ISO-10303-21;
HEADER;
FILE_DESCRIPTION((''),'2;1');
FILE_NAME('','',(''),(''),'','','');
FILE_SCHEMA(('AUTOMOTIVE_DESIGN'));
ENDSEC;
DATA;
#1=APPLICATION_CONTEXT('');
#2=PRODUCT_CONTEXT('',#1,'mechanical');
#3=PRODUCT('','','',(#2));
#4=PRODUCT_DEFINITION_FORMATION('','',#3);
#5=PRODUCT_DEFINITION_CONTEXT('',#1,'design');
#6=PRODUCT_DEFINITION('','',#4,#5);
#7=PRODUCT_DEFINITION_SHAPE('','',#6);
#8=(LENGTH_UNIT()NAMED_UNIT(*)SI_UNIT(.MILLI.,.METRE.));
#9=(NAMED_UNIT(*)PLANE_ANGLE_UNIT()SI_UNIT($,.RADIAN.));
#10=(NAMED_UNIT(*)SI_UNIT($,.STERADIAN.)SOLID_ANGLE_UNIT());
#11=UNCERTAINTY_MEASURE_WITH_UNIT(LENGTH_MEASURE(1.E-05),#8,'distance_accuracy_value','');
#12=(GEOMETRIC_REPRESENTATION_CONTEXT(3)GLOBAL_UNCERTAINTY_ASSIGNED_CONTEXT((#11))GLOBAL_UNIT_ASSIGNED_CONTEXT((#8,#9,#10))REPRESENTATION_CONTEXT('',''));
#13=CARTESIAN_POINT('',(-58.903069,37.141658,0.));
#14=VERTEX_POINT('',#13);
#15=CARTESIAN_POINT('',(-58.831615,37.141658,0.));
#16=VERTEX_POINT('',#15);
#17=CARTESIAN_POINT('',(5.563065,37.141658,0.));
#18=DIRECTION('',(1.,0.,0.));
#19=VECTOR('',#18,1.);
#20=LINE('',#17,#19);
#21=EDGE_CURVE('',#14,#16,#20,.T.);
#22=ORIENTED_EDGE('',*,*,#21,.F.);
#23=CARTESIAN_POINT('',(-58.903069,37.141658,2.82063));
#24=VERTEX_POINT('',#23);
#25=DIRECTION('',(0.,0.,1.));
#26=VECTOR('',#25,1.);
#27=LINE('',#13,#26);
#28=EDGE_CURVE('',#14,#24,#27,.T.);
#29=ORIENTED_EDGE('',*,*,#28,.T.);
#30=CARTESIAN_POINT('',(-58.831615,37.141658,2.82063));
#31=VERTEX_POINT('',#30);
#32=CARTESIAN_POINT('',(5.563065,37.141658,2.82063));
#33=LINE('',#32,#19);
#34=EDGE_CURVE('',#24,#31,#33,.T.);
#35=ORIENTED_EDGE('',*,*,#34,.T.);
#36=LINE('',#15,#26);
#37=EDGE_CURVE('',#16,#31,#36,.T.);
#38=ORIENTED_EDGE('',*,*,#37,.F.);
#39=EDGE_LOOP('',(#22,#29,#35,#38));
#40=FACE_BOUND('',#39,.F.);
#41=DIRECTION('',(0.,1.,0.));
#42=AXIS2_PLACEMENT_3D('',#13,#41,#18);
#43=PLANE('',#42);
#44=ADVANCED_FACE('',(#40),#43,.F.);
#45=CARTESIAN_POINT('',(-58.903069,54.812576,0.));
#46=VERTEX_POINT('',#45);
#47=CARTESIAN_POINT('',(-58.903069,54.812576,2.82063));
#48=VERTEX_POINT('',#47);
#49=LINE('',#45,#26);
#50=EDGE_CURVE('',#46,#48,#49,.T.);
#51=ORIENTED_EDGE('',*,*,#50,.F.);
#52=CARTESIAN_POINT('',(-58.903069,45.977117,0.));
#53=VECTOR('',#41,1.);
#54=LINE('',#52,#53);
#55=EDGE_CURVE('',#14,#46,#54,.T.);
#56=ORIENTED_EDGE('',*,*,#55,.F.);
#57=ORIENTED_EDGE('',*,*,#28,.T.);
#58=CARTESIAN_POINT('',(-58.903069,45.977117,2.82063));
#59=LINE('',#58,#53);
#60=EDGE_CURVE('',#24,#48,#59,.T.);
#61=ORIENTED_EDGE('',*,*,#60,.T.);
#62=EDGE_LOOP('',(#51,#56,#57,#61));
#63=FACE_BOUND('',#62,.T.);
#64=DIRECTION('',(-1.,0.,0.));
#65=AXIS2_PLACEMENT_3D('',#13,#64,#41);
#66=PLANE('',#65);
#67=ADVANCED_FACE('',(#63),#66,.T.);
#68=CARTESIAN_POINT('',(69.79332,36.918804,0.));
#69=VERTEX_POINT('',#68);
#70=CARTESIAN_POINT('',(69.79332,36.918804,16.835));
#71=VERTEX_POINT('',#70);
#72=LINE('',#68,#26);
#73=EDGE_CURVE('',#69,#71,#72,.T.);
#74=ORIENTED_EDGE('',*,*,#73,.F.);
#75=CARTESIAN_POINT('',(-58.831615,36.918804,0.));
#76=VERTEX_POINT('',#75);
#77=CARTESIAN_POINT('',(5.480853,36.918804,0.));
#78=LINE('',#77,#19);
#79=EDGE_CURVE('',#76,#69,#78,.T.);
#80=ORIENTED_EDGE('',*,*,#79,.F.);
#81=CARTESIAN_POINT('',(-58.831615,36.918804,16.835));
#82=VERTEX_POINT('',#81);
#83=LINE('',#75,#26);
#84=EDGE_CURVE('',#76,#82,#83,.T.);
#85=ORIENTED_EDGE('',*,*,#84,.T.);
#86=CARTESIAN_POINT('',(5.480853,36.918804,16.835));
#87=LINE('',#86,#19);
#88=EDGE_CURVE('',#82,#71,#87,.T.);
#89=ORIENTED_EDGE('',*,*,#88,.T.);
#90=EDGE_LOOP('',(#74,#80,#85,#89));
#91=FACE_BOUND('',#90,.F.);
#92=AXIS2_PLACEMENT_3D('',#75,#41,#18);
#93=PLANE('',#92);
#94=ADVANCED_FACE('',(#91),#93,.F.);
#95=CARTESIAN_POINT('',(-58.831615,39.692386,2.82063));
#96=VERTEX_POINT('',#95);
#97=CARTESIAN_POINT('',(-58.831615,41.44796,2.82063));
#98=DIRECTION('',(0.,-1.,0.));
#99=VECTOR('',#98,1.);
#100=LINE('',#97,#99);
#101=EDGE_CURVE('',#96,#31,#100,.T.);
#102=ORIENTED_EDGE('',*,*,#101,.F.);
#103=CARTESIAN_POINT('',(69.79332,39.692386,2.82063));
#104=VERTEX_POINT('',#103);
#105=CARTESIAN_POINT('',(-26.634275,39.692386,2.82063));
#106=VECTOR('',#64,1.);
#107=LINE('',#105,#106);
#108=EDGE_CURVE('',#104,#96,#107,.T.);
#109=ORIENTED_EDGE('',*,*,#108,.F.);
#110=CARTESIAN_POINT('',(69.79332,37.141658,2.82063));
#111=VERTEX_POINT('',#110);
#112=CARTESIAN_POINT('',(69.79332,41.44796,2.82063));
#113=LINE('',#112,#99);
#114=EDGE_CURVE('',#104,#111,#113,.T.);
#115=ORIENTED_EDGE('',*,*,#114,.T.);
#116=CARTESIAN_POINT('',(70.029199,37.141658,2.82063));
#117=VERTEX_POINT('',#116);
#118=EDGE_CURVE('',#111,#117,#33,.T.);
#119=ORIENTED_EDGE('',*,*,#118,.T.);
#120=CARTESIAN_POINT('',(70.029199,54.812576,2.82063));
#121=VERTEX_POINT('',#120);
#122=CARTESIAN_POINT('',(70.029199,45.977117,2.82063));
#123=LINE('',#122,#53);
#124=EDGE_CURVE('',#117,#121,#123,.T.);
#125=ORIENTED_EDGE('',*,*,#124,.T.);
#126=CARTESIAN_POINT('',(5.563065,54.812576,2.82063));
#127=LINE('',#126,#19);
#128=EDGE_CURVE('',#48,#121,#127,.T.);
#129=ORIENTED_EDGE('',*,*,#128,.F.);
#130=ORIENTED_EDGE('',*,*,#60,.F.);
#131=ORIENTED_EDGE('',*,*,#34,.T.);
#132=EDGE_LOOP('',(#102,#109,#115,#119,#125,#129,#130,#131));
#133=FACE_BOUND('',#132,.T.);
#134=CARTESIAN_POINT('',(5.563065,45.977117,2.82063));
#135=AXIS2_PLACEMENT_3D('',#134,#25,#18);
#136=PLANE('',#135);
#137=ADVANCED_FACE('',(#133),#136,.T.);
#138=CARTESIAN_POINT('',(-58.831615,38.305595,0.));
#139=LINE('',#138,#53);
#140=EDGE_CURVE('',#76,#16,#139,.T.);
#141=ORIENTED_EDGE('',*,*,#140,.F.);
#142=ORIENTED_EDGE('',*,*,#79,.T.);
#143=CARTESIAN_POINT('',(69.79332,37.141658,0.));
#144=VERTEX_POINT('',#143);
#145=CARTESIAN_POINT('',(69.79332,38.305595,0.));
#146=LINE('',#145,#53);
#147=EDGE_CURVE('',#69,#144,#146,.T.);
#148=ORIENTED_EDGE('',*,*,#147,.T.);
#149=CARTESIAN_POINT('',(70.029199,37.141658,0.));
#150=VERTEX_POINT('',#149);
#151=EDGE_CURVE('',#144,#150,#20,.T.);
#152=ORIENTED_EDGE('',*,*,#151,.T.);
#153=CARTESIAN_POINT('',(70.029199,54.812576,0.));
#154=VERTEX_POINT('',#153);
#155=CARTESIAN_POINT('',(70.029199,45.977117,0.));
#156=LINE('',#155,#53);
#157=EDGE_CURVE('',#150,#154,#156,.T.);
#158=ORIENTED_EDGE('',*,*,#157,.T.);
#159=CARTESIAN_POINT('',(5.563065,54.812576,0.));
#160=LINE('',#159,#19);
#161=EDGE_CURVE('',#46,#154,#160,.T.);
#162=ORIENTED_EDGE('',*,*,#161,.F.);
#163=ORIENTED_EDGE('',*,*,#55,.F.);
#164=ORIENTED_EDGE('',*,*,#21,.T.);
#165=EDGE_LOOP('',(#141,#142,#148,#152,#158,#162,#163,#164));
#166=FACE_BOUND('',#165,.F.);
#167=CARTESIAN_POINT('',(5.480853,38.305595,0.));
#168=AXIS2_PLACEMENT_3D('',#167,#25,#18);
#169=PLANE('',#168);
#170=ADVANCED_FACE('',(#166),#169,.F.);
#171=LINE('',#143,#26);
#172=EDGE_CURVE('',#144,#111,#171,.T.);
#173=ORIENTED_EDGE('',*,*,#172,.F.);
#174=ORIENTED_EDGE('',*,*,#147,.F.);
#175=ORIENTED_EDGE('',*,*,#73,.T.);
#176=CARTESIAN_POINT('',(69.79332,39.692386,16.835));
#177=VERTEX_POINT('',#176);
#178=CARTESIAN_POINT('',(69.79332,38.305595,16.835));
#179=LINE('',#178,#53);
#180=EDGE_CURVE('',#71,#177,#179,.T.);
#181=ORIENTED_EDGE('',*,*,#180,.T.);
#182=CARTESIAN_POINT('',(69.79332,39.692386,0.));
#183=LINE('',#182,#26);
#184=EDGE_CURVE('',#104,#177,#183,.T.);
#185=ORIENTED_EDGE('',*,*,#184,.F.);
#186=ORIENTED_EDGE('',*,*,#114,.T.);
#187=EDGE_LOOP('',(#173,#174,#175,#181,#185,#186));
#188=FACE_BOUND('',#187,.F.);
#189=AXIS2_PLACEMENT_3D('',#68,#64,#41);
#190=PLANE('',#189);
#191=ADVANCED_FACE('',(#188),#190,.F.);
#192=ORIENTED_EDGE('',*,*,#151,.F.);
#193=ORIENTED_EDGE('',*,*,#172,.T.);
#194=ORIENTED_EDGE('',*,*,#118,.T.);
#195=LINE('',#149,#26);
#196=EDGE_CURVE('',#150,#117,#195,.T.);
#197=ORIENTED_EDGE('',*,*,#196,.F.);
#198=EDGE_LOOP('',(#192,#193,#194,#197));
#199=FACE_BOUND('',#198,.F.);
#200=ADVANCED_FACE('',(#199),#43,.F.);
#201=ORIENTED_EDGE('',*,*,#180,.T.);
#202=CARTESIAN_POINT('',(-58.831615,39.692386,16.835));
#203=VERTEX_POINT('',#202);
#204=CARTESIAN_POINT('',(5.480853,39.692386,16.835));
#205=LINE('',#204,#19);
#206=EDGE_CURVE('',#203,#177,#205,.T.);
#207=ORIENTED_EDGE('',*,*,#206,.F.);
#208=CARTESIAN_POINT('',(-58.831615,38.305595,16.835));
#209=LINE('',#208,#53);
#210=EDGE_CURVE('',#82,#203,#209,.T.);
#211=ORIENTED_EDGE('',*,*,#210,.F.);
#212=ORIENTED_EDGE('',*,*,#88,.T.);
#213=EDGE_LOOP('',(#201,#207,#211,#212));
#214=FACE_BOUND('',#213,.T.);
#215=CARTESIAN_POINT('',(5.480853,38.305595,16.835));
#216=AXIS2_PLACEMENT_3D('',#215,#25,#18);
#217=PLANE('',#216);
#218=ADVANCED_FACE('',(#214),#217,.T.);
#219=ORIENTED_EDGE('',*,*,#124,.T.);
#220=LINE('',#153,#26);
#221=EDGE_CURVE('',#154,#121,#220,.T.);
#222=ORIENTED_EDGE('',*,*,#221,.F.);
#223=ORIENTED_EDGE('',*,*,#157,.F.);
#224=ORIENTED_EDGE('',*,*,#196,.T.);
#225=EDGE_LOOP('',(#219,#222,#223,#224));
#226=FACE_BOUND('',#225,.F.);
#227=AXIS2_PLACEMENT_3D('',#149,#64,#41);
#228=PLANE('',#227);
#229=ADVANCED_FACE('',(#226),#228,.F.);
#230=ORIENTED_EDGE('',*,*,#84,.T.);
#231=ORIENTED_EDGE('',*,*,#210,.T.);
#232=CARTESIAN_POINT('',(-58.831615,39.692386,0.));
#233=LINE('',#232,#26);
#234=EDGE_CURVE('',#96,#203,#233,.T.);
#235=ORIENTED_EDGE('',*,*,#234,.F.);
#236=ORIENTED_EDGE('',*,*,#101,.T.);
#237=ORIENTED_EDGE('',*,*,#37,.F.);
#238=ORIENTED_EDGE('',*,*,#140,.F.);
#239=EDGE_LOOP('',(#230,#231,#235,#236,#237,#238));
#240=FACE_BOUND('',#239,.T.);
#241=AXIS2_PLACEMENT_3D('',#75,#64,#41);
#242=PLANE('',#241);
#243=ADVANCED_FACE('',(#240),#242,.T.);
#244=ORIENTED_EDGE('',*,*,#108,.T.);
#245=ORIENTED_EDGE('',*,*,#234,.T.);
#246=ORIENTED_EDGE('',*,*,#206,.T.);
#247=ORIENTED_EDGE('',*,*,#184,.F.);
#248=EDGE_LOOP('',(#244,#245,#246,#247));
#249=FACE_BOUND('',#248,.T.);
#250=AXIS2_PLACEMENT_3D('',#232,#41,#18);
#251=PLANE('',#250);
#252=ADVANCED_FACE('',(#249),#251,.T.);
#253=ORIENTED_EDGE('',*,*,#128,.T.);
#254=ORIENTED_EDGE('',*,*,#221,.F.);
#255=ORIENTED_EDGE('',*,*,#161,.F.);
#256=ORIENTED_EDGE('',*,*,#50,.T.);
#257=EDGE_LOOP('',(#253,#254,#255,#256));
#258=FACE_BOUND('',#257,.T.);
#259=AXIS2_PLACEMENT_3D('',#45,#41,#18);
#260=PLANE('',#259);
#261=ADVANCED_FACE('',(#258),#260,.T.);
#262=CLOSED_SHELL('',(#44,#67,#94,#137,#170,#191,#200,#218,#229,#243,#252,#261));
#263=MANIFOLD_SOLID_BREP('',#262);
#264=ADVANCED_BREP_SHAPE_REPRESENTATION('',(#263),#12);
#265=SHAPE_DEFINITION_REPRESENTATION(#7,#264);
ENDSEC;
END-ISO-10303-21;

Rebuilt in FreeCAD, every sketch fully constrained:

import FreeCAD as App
import Part
import Sketcher
from FreeCAD import Vector
Q = App.Units.Quantity


def add_polygon(sketch, points):
    """Adds a closed chain of lines whose ends are joined by coincident constraints."""
    first, n = sketch.GeometryCount, len(points)
    for a, b in zip(points, points[1:] + points[:1]):
        sketch.addGeometry(Part.LineSegment(App.Vector(*a, 0), App.Vector(*b, 0)), False)
    for i in range(n):
        sketch.addConstraint(Sketcher.Constraint("Coincident", first + i, 2, first + (i + 1) % n, 1))

doc = App.newDocument("Part")
body = doc.addObject("PartDesign::Body", "Body")

sketch1 = body.newObject("Sketcher::SketchObject", "Sketch")
sketch1.AttachmentSupport = (doc.getObject("XY_Plane"), [""])
sketch1.MapMode = "FlatFace"
add_polygon(sketch1, [(-59, 55), (-59, 37), (70, 37), (70, 55)])
sketch1.addConstraint([
    Sketcher.Constraint("Vertical", 0),
    Sketcher.Constraint("Horizontal", 1),
    Sketcher.Constraint("Vertical", 2),
    Sketcher.Constraint("Horizontal", 3),
    Sketcher.Constraint("DistanceY", 0, 2, 0, 1, Q("17.670919 mm")),
    Sketcher.Constraint("DistanceX", -1, 1, 1, 2, Q("70.029199 mm")),
    Sketcher.Constraint("DistanceX", 1, 1, 1, 2, Q("128.932267 mm")),
    Sketcher.Constraint("DistanceY", -1, 1, 0, 2, Q("37.141658 mm")),
])
pad1 = body.newObject("PartDesign::Pad", "Pad")
pad1.Profile = sketch1
pad1.Length = 2.82063

sketch2 = body.newObject("Sketcher::SketchObject", "Sketch001")
sketch2.AttachmentSupport = (doc.getObject("XY_Plane"), [""])
sketch2.MapMode = "FlatFace"
add_polygon(sketch2, [(-58.8, 39.7), (-58.8, 36.9), (69.8, 36.9), (69.8, 39.7)])
sketch2.addConstraint([
    Sketcher.Constraint("Vertical", 0),
    Sketcher.Constraint("Horizontal", 1),
    Sketcher.Constraint("Vertical", 2),
    Sketcher.Constraint("Horizontal", 3),
    Sketcher.Constraint("DistanceX", 1, 1, 1, 2, Q("128.624935 mm")),
    Sketcher.Constraint("DistanceY", 0, 2, 0, 1, Q("2.773583 mm")),
    Sketcher.Constraint("DistanceX", -1, 1, 1, 2, Q("69.79332 mm")),
    Sketcher.Constraint("DistanceY", -1, 1, 0, 2, Q("36.918804 mm")),
])
pad2 = body.newObject("PartDesign::Pad", "Pad001")
pad2.Profile = sketch2
pad2.Length = 16.835

doc.recompute()
